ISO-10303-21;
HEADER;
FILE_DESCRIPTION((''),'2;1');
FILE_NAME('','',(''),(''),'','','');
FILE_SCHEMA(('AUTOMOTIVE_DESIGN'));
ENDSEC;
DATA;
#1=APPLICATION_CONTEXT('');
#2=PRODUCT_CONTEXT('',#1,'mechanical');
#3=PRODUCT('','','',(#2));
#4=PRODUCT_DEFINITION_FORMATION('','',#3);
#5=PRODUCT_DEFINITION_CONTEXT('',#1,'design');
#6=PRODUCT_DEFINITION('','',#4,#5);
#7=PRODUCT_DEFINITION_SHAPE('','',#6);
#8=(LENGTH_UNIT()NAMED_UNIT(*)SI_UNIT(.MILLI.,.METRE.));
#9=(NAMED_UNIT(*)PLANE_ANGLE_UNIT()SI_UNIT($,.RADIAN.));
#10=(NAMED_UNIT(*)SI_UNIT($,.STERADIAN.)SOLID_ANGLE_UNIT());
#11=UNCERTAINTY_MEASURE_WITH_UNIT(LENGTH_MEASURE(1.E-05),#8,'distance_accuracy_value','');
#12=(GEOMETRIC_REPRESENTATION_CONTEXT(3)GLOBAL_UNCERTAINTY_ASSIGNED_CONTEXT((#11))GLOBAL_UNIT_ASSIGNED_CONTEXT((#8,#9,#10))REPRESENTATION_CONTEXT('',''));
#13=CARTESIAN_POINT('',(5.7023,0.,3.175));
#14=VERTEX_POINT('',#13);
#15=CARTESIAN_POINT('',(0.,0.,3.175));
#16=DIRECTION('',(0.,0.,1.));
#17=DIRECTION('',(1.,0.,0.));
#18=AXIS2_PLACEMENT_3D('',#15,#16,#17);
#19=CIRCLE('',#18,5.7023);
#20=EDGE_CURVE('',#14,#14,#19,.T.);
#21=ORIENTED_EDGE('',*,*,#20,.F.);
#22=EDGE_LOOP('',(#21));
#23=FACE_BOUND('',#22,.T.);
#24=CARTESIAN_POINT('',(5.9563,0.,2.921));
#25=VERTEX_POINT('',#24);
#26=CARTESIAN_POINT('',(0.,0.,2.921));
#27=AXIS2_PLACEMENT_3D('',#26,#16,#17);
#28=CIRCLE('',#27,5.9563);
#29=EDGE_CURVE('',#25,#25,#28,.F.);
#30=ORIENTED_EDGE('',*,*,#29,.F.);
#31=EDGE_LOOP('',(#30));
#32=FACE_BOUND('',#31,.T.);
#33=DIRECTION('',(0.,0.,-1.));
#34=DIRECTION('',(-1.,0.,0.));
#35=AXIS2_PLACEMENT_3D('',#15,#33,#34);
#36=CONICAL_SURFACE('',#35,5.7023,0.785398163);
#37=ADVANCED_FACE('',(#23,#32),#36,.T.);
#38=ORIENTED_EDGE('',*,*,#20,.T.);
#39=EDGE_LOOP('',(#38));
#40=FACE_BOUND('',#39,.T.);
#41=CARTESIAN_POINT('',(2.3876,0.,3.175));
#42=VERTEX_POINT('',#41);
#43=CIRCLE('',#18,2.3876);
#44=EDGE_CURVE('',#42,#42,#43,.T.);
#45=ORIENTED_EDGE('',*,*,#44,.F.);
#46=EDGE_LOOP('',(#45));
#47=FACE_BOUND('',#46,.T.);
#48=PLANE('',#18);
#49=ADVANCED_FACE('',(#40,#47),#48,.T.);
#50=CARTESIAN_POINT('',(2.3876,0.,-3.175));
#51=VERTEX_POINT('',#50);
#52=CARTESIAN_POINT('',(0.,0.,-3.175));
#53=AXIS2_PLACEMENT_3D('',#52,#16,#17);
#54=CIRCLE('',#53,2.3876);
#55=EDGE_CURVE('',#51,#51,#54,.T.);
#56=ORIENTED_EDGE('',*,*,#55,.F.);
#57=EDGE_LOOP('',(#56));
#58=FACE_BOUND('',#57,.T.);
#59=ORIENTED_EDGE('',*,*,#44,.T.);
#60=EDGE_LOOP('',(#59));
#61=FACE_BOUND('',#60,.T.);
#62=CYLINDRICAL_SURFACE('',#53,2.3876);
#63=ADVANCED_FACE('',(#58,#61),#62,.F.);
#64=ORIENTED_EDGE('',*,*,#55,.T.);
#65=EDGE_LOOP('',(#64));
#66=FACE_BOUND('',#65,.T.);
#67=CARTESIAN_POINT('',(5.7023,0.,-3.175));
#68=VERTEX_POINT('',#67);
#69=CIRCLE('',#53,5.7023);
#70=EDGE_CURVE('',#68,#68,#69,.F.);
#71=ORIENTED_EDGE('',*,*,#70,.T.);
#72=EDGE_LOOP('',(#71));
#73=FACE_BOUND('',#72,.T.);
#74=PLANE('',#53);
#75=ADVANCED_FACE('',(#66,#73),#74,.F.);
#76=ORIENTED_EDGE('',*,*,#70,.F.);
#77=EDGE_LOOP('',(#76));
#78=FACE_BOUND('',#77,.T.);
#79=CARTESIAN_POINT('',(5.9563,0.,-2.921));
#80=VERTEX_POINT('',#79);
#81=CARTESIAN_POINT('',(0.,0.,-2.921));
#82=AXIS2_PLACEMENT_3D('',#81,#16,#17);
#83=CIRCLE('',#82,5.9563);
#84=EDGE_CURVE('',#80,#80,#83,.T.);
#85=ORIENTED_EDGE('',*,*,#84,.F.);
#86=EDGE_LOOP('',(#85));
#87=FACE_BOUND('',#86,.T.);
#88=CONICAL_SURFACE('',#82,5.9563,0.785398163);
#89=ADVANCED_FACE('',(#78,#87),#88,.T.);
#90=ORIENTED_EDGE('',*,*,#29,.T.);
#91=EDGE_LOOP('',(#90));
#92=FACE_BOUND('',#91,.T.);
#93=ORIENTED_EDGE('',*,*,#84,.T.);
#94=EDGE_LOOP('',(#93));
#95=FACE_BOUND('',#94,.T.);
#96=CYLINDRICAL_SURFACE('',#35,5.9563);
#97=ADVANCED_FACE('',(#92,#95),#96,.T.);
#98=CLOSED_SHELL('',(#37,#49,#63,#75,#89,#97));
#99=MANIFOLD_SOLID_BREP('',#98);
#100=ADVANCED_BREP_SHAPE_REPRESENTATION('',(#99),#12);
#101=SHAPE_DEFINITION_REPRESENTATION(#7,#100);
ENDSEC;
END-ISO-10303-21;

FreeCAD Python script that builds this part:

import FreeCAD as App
import Part
import Sketcher

V = App.Vector
Q = App.Units.Quantity


def edges_at(feature, points):
    """Names of the edges that pass closest to the given points."""
    edges = feature.Shape.Edges
    near = lambda p: min(range(len(edges)), key=lambda i: edges[i].distToShape(Part.Vertex(*p))[0])
    return sorted({f"Edge{near(p) + 1}" for p in points})

doc = App.newDocument("Part")
body = doc.addObject("PartDesign::Body", "Body")

# Sketch on XY plane
sketch1 = body.newObject("Sketcher::SketchObject", "Sketch")
sketch1.AttachmentSupport = (doc.getObject("XY_Plane"), [""])
sketch1.MapMode = "FlatFace"
sketch1.addGeometry(Part.Circle(V(0, 0, 0), V(0, 0, 1), 6), False)
sketch1.addConstraint(Sketcher.Constraint("Coincident", 0, 3, -1, 1))
sketch1.addConstraint(Sketcher.Constraint("Diameter", 0, Q("0.469 in")))
pad1 = body.newObject("PartDesign::Pad", "Pad")
pad1.Profile = sketch1
pad1.Length = Q("0.25 in")
pad1.Midplane = True

# Sketch on XY plane
sketch2 = body.newObject("Sketcher::SketchObject", "Sketch001")
sketch2.AttachmentSupport = (doc.getObject("XY_Plane"), [""])
sketch2.MapMode = "FlatFace"
sketch2.AttachmentOffset = App.Placement(V(0, 0, 0.125 * 25.4), App.Rotation())
sketch2.addGeometry(Part.Circle(V(0, 0, 0), V(0, 0, 1), 2.4), False)
sketch2.addConstraint(Sketcher.Constraint("Coincident", 0, 3, -1, 1))
sketch2.addConstraint(Sketcher.Constraint("Diameter", 0, Q("0.188 in")))
pocket1 = body.newObject("PartDesign::Pocket", "Pocket")
pocket1.Profile = sketch2
pocket1.Type = "ThroughAll"
doc.recompute()

chamfer = body.newObject("PartDesign::Chamfer", "Chamfer")
chamfer.Base = (pocket1, edges_at(pocket1, [(-5.956, 0, -3.175), (-5.956, 0, 3.175)]))
chamfer.Size = Q("0.01 in")

doc.recompute()
